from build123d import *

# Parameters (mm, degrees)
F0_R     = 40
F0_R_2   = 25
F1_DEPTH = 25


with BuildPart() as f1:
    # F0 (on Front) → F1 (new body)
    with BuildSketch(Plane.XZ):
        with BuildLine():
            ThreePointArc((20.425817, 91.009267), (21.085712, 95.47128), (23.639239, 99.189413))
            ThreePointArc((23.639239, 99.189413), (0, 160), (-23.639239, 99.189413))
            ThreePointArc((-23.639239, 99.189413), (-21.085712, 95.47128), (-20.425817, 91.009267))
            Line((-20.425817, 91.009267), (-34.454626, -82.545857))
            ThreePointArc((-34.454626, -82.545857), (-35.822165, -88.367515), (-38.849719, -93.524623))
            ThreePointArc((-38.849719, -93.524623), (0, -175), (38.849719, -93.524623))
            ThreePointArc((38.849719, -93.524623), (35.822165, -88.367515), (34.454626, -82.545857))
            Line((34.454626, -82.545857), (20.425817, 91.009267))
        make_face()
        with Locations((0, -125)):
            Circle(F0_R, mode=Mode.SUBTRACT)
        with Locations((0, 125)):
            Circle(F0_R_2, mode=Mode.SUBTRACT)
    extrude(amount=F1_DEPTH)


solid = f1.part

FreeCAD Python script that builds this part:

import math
import FreeCAD as App
import Part
import Sketcher
from FreeCAD import Vector

doc = App.newDocument("Part")
body = doc.addObject("PartDesign::Body", "Body")

sketch1 = doc.addObject("Sketcher::SketchObject", "Sketch")
body.addObject(sketch1)
sketch1.AttachmentSupport = (doc.XZ_Plane, [""])
sketch1.MapMode = "FlatFace"
sketch1.addGeometry([
    Part.ArcOfCircle(Part.Circle(Vector(30.393304, 91.814961, 0), Vector(0, 0, 1), 9.999997), math.radians(132.485742), math.radians(184.621295)),
    Part.ArcOfCircle(Part.Circle(Vector(0, 125, 0), Vector(0, 0, 1), 35), math.radians(-47.51425), math.radians(227.51425)),
    Part.ArcOfCircle(Part.Circle(Vector(-30.393304, 91.814961, 0), Vector(0, 0, 1), 9.999997), math.radians(-4.621295), math.radians(47.514258)),
    Part.LineSegment(Vector(-20.425817, 91.009267, 0), Vector(-34.454626, -82.545857, 0)),
    Part.ArcOfCircle(Part.Circle(Vector(-54.389604, -80.934473, 0), Vector(0, 0, 1), 19.999998), math.radians(-39.013802), math.radians(-4.621285)),
    Part.ArcOfCircle(Part.Circle(Vector(0, -125, 0), Vector(0, 0, 1), 50), math.radians(140.986201), math.radians(399.013799)),
    Part.ArcOfCircle(Part.Circle(Vector(54.389604, -80.934473, 0), Vector(0, 0, 1), 19.999998), math.radians(-175.378715), math.radians(-140.986198)),
    Part.LineSegment(Vector(34.454626, -82.545857, 0), Vector(20.425817, 91.009267, 0)),
    Part.Circle(Vector(0, -125, 0), Vector(0, 0, 1), 40),
    Part.Circle(Vector(0, 125, 0), Vector(0, 0, 1), 25),
], False)
sketch1.addConstraint([
    Sketcher.Constraint("Tangent", 0, 1, 1, 1),
    Sketcher.Constraint("Tangent", 1, 2, 2, 2),
    Sketcher.Constraint("Tangent", 2, 1, 3, 1),
    Sketcher.Constraint("Tangent", 3, 2, 4, 2),
    Sketcher.Constraint("Tangent", 4, 1, 5, 1),
    Sketcher.Constraint("Tangent", 5, 2, 6, 2),
    Sketcher.Constraint("Tangent", 6, 1, 7, 1),
    Sketcher.Constraint("Tangent", 7, 2, 0, 2),
    Sketcher.Constraint("Coincident", 8, 3, 5, 3),
    Sketcher.Constraint("Coincident", 9, 3, 1, 3),
    Sketcher.Constraint("Equal", 0, 2),
    Sketcher.Constraint("Equal", 4, 6),
    Sketcher.Constraint("Symmetric", 1, 3, 5, 3, -1, 1),
    Sketcher.Constraint("Symmetric", 0, 3, 2, 3, -2),
    Sketcher.Constraint("Horizontal", 4, 3, 6, 3),
    Sketcher.Constraint("Diameter", 8, 80.0),
    Sketcher.Constraint("Diameter", 9, 50.0),
    Sketcher.Constraint("Radius", 1, 35.0),
    Sketcher.Constraint("Radius", 5, 50.0),
    Sketcher.Constraint("DistanceY", -1, 1, 1, 3, 125.0),
    Sketcher.Constraint("Radius", 0, 9.999997),
    Sketcher.Constraint("Radius", 4, 19.999998),
    Sketcher.Constraint("DistanceX", 4, 3, 2, 3, 23.9963),
    Sketcher.Constraint("Distance", 3, 174.121189),
])
pad1 = doc.addObject("PartDesign::Pad", "Pad")
body.addObject(pad1)
pad1.Profile = sketch1
pad1.Length = 25

doc.recompute()
